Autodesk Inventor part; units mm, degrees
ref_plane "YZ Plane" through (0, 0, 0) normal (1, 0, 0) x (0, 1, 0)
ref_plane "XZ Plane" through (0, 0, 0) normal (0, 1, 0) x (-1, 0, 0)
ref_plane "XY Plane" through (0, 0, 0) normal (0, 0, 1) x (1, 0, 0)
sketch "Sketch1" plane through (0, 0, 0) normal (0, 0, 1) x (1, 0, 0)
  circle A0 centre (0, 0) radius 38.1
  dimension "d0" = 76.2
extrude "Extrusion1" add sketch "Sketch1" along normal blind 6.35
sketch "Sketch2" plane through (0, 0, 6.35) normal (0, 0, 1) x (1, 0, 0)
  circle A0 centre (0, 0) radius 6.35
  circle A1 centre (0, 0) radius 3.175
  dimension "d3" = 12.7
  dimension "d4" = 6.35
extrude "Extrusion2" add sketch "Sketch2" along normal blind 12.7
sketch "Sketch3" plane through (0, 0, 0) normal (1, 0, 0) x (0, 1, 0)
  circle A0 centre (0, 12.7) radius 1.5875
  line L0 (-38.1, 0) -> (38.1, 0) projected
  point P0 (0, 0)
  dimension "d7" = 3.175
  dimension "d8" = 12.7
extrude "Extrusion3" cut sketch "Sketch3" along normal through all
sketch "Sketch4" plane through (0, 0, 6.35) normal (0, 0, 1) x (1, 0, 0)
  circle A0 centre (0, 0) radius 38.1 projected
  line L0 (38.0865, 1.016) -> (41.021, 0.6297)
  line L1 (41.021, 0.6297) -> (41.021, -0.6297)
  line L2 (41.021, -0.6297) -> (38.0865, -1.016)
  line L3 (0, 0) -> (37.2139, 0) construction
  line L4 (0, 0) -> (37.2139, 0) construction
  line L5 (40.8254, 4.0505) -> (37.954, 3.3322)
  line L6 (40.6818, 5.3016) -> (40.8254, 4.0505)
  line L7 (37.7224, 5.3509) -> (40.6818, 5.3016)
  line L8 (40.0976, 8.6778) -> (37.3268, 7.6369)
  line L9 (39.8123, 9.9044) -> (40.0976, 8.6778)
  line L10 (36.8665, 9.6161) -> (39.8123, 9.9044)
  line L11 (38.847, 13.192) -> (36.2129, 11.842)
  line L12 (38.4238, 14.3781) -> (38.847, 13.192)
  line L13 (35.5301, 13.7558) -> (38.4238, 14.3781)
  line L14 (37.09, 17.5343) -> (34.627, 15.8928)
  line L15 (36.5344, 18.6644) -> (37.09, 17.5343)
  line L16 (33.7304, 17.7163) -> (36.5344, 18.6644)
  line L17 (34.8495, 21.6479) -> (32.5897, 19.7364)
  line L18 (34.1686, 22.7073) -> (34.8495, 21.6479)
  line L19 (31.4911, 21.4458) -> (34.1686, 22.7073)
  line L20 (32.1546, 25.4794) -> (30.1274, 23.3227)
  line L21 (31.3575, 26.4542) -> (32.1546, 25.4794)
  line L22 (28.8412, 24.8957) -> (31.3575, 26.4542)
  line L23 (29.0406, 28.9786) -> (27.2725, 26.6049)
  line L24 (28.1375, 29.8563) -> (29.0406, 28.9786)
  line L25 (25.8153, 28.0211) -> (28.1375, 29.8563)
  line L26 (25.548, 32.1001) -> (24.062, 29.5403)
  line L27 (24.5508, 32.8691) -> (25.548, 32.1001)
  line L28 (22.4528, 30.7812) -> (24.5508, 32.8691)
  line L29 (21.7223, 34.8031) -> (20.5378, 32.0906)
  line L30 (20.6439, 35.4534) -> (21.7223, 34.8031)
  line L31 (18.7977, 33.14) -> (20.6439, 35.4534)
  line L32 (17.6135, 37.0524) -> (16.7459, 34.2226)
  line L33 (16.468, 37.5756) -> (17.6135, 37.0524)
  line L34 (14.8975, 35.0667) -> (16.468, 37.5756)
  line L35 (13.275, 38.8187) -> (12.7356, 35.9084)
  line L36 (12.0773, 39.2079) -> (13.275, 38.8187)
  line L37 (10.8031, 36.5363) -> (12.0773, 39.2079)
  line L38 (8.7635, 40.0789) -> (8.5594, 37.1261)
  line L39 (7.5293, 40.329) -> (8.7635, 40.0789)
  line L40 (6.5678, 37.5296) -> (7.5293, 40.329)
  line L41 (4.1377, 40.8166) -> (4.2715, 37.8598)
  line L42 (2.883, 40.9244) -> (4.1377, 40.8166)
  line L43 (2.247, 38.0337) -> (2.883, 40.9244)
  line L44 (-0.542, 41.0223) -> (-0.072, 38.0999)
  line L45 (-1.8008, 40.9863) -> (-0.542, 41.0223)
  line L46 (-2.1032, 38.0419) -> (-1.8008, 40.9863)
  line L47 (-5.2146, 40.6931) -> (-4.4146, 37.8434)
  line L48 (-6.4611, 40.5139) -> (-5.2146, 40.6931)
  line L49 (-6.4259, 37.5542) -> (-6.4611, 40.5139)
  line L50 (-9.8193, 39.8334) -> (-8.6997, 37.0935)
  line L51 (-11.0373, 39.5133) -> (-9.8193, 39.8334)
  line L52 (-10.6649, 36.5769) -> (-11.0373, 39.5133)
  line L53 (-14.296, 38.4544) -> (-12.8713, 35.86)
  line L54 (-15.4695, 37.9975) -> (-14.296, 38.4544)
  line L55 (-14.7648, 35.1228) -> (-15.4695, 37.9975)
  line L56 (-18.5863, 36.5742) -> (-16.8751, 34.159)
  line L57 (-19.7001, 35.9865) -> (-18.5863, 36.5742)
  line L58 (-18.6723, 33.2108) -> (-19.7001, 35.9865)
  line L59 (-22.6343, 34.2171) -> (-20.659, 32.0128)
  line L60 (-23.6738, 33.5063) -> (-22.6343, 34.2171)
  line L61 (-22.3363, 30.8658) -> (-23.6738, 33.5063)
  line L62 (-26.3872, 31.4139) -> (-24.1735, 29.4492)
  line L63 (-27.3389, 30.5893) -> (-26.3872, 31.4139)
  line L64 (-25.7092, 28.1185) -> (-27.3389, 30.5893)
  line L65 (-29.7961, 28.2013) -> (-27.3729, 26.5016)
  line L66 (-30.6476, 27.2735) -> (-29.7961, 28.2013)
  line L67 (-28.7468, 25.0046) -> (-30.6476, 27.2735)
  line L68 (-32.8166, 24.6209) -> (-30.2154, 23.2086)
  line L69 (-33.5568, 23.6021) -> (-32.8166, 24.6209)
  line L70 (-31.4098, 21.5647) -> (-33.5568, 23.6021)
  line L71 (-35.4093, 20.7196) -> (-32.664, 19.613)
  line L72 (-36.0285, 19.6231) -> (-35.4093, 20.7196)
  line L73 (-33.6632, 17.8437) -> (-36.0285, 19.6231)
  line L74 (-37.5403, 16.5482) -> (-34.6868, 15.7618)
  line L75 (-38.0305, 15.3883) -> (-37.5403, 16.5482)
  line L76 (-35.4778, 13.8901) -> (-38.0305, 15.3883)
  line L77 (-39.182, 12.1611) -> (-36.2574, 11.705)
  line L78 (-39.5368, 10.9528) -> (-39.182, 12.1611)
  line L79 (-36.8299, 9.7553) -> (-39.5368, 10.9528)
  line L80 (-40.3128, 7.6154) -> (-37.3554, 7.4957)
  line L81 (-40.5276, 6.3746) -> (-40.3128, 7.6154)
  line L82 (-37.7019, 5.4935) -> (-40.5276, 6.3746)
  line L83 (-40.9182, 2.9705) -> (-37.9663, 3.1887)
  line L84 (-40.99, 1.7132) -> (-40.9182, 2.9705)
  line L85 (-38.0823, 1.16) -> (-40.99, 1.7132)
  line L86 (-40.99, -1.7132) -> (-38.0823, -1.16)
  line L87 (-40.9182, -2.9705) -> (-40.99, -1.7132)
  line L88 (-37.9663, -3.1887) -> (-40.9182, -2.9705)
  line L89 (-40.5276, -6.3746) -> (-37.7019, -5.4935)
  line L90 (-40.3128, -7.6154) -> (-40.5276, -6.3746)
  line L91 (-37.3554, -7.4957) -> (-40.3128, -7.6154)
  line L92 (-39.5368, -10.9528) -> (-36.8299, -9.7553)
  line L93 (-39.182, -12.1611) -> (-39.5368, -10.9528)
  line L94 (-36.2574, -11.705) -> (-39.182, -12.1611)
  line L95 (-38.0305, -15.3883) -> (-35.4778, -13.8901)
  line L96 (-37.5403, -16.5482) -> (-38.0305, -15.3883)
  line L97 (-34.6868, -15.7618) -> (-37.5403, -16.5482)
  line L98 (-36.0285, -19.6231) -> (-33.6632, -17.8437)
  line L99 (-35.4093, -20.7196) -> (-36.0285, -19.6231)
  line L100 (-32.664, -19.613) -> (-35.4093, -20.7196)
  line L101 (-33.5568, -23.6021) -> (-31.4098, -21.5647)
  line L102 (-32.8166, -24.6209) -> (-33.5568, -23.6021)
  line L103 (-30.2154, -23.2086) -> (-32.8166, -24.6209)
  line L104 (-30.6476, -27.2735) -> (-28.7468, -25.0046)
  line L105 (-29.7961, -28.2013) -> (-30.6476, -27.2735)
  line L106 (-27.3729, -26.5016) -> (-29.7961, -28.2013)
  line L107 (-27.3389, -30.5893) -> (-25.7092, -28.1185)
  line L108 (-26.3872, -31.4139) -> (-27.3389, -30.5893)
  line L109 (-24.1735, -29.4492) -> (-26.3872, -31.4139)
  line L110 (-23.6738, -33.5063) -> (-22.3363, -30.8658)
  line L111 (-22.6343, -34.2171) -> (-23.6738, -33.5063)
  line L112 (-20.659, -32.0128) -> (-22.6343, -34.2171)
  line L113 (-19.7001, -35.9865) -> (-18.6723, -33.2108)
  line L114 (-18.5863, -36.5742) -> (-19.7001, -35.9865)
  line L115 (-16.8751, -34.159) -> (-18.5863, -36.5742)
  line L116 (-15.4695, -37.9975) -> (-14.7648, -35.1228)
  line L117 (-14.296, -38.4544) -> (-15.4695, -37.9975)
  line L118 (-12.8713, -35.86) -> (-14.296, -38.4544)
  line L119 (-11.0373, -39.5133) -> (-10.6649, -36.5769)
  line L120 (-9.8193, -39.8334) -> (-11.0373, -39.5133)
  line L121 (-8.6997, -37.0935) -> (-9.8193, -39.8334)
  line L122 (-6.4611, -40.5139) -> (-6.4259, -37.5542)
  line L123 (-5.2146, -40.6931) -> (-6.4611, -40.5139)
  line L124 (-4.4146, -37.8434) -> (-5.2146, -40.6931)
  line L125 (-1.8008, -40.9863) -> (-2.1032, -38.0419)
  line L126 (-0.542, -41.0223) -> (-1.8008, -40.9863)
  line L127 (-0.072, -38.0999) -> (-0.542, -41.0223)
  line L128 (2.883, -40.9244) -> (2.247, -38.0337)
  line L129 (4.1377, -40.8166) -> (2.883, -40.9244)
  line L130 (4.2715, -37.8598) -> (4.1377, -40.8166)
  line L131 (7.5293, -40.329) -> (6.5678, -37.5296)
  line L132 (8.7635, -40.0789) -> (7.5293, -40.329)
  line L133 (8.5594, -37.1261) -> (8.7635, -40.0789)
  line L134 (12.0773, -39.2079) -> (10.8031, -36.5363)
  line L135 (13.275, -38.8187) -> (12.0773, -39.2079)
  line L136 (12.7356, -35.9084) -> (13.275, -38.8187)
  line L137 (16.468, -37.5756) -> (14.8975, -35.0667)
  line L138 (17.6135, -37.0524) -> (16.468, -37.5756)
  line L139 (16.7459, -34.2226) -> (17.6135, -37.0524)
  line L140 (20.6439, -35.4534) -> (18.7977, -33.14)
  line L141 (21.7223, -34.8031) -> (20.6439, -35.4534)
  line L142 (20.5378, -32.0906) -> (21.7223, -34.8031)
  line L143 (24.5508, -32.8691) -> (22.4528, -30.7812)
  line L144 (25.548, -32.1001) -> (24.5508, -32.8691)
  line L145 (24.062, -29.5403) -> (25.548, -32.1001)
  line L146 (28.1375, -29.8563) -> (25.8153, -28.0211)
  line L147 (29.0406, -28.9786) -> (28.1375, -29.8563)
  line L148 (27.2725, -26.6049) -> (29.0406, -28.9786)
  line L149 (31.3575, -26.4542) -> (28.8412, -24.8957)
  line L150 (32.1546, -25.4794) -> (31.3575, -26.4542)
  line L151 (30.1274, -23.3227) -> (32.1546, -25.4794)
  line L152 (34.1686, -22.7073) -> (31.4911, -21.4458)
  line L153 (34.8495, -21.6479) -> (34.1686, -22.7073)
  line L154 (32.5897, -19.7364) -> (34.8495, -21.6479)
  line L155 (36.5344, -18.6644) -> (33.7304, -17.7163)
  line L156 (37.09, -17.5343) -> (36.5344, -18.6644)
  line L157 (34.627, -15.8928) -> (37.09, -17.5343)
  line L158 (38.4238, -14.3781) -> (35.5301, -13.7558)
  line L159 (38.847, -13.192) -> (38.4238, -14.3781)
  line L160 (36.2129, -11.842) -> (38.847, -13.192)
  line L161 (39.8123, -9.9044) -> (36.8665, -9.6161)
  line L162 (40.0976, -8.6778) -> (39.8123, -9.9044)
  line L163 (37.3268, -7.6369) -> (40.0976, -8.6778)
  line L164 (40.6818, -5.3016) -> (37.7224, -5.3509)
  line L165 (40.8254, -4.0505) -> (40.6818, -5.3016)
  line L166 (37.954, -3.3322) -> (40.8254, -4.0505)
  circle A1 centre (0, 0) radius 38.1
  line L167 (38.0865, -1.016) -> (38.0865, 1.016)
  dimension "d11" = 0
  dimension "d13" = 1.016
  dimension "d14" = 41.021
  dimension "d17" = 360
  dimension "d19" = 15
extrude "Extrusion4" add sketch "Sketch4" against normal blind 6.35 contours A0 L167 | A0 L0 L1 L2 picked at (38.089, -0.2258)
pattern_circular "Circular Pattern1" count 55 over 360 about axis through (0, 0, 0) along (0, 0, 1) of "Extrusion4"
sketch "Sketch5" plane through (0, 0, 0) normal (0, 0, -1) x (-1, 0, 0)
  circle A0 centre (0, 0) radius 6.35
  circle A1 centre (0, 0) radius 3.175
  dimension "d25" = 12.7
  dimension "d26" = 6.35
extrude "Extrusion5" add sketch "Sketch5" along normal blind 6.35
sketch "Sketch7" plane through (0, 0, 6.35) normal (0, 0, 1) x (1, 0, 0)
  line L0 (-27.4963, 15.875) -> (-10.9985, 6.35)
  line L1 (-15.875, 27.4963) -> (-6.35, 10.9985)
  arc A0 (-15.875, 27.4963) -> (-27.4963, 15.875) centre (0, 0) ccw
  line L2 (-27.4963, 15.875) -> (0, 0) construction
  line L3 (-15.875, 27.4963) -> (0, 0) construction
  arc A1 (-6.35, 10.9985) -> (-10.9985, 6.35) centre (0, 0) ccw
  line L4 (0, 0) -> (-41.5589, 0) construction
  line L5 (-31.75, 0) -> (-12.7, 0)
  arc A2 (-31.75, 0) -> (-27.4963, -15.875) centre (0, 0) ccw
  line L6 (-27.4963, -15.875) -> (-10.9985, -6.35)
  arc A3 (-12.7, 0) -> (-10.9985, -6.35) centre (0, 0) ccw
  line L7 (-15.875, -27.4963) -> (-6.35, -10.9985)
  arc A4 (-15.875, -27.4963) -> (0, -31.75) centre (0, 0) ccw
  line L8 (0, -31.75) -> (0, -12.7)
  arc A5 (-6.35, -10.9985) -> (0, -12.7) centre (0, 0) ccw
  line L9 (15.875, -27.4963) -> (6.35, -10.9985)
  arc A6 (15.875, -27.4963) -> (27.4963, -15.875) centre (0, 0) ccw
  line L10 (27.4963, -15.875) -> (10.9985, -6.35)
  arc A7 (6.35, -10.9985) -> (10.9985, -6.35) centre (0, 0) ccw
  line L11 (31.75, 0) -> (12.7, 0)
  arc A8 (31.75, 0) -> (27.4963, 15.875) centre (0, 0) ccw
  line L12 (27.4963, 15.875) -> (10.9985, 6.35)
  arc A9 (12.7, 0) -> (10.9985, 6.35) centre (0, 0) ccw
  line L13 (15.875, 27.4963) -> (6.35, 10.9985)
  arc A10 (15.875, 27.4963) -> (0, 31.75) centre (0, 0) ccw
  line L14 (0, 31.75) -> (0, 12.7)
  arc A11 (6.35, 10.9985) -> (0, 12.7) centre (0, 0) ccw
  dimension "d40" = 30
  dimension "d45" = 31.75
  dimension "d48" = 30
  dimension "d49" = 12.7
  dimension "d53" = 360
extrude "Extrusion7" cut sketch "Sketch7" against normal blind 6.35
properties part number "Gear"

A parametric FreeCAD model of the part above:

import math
import FreeCAD as App
import Part
import Sketcher
Q = App.Units.Quantity

doc = App.newDocument("Part")
body = doc.addObject("PartDesign::Body", "Body")

sketch1 = body.newObject("Sketcher::SketchObject", "Sketch")
sketch1.AttachmentSupport = (doc.getObject("XY_Plane"), [""])
sketch1.MapMode = "FlatFace"
sketch1.addGeometry(Part.Circle(App.Vector(0, 0, 0), App.Vector(0, 0, 1), 38.1), False)
sketch1.addConstraint(Sketcher.Constraint("Coincident", 0, 3, -1, 1))
sketch1.addConstraint(Sketcher.Constraint("Diameter", 0, Q("3 in")))
pad1 = body.newObject("PartDesign::Pad", "Pad")
pad1.Profile = sketch1
pad1.Length = Q("0.25 in")

sketch2 = body.newObject("Sketcher::SketchObject", "Sketch001")
sketch2.AttachmentSupport = (doc.getObject("XY_Plane"), [""])
sketch2.MapMode = "FlatFace"
sketch2.AttachmentOffset = App.Placement(App.Vector(0, 0, 0.25 * 25.4), App.Rotation())
sketch2.addGeometry(Part.Circle(App.Vector(0, 0, 0), App.Vector(0, 0, 1), 6.35), False)
sketch2.addGeometry(Part.Circle(App.Vector(0, 0, 0), App.Vector(0, 0, 1), 3.175), False)
sketch2.addConstraint(Sketcher.Constraint("Coincident", 0, 3, -1, 1))
sketch2.addConstraint(Sketcher.Constraint("Coincident", 1, 3, -1, 1))
sketch2.addConstraint(Sketcher.Constraint("Diameter", 0, Q("0.5 in")))
sketch2.addConstraint(Sketcher.Constraint("Diameter", 1, Q("0.25 in")))
pad2 = body.newObject("PartDesign::Pad", "Pad001")
pad2.Profile = sketch2
pad2.Length = Q("0.5 in")

sketch3 = body.newObject("Sketcher::SketchObject", "Sketch002")
sketch3.AttachmentSupport = (doc.getObject("YZ_Plane"), [""])
sketch3.MapMode = "FlatFace"
sketch3.addGeometry(Part.Circle(App.Vector(0, 12.7, 0), App.Vector(0, 0, 1), 1.5875), False)
sketch3.addConstraint(Sketcher.Constraint("PointOnObject", 0, 3, -2))
sketch3.addConstraint(Sketcher.Constraint("Diameter", 0, Q("0.125 in")))
sketch3.addConstraint(Sketcher.Constraint("DistanceY", -1, 1, 0, 3, Q("0.5 in")))
pocket1 = body.newObject("PartDesign::Pocket", "Pocket")
pocket1.Profile = sketch3
pocket1.Type = "ThroughAll"
pocket1.Reversed = True

sketch4 = body.newObject("Sketcher::SketchObject", "Sketch003")
sketch4.AttachmentSupport = (doc.getObject("XY_Plane"), [""])
sketch4.MapMode = "FlatFace"
sketch4.AttachmentOffset = App.Placement(App.Vector(0, 0, 0.25 * 25.4), App.Rotation())
sketch4.addGeometry(Part.LineSegment(App.Vector(38.0865, 1.016, 0), App.Vector(38.0865, -1.016, 0)), False)
sketch4.addGeometry(Part.LineSegment(App.Vector(38.0865, -1.016, 0), App.Vector(41.021, -0.6297, 0)), False)
sketch4.addGeometry(Part.LineSegment(App.Vector(41.021, -0.6297, 0), App.Vector(41.021, 0.6297, 0)), False)
sketch4.addGeometry(Part.LineSegment(App.Vector(41.021, 0.6297, 0), App.Vector(38.0865, 1.016, 0)), False)
sketch4.addConstraint(Sketcher.Constraint("Coincident", 0, 2, 1, 1))
sketch4.addConstraint(Sketcher.Constraint("Coincident", 1, 2, 2, 1))
sketch4.addConstraint(Sketcher.Constraint("Coincident", 2, 2, 3, 1))
sketch4.addConstraint(Sketcher.Constraint("Coincident", 3, 2, 0, 1))
sketch4.addConstraint(Sketcher.Constraint("Vertical", 0))
sketch4.addConstraint(Sketcher.Constraint("Vertical", 2))
sketch4.addConstraint(Sketcher.Constraint("Equal", 1, 3))
sketch4.addConstraint(Sketcher.Constraint("DistanceY", 0, 2, -1, 1, Q("0.04 in")))
sketch4.addConstraint(Sketcher.Constraint("DistanceY", -1, 1, 3, 2, Q("0.04 in")))
sketch4.addConstraint(Sketcher.Constraint("DistanceX", -1, 1, 1, 2, Q("1.615 in")))
sketch4.addConstraint(Sketcher.Constraint("Angle", 1, Q("7.4993 deg")))
sketch4.addConstraint(Sketcher.Constraint("DistanceY", 2, 1, 2, 2, Q("1.2594 mm")))
pad3 = body.newObject("PartDesign::Pad", "Pad002")
pad3.Profile = sketch4
pad3.Length = Q("0.25 in")
pad3.Reversed = True
doc.recompute()

polarpattern = body.newObject("PartDesign::PolarPattern", "PolarPattern")
polarpattern.Originals = [pad3]
polarpattern.Axis = (doc.getObject("Z_Axis"), [""])
polarpattern.Angle = 360
polarpattern.Occurrences = 55
body.Tip = polarpattern

sketch5 = body.newObject("Sketcher::SketchObject", "Sketch004")
sketch5.AttachmentSupport = (doc.getObject("XY_Plane"), [""])
sketch5.MapMode = "FlatFace"
sketch5.addGeometry(Part.Circle(App.Vector(0, 0, 0), App.Vector(0, 0, 1), 6.35), False)
sketch5.addGeometry(Part.Circle(App.Vector(0, 0, 0), App.Vector(0, 0, 1), 3.175), False)
sketch5.addConstraint(Sketcher.Constraint("Coincident", 0, 3, -1, 1))
sketch5.addConstraint(Sketcher.Constraint("Coincident", 1, 3, -1, 1))
sketch5.addConstraint(Sketcher.Constraint("Diameter", 0, Q("0.5 in")))
sketch5.addConstraint(Sketcher.Constraint("Diameter", 1, Q("0.25 in")))
pad4 = body.newObject("PartDesign::Pad", "Pad003")
pad4.Profile = sketch5
pad4.Length = Q("0.25 in")
pad4.Reversed = True

sketch6 = body.newObject("Sketcher::SketchObject", "Sketch005")
sketch6.AttachmentSupport = (doc.getObject("XY_Plane"), [""])
sketch6.MapMode = "FlatFace"
sketch6.AttachmentOffset = App.Placement(App.Vector(0, 0, 0.25 * 25.4), App.Rotation())
sketch6.addGeometry(Part.ArcOfCircle(Part.Circle(App.Vector(0, 0, 0), App.Vector(0, 0, 1), 31.749994), math.radians(120.000006), math.radians(149.999994)), False)
sketch6.addGeometry(Part.LineSegment(App.Vector(-27.4963, 15.875, 0), App.Vector(-10.9985, 6.35, 0)), False)
sketch6.addGeometry(Part.ArcOfCircle(Part.Circle(App.Vector(0, 0, 0), App.Vector(0, 0, 1), 12.69998), math.radians(120.000051), math.radians(149.999949)), False)
sketch6.addGeometry(Part.LineSegment(App.Vector(-6.35, 10.9985, 0), App.Vector(-15.875, 27.4963, 0)), False)
sketch6.addGeometry(Part.LineSegment(App.Vector(-12.7, 0, 0), App.Vector(-31.75, 0, 0)), False)
sketch6.addGeometry(Part.ArcOfCircle(Part.Circle(App.Vector(0, 0, 0), App.Vector(0, 0, 1), 31.749994), math.radians(180), math.radians(210.000006)), False)
sketch6.addGeometry(Part.LineSegment(App.Vector(-27.4963, -15.875, 0), App.Vector(-10.9985, -6.35, 0)), False)
sketch6.addGeometry(Part.ArcOfCircle(Part.Circle(App.Vector(0, 0, 0), App.Vector(0, 0, 1), 12.69998), math.radians(180), math.radians(210.000051)), False)
sketch6.addGeometry(Part.LineSegment(App.Vector(-6.35, -10.9985, 0), App.Vector(-15.875, -27.4963, 0)), False)
sketch6.addGeometry(Part.ArcOfCircle(Part.Circle(App.Vector(0, 0, 0), App.Vector(0, 0, 1), 31.75), math.radians(-120.000006), math.radians(-90)), False)
sketch6.addGeometry(Part.LineSegment(App.Vector(0, -31.75, 0), App.Vector(0, -12.7, 0)), False)
sketch6.addGeometry(Part.ArcOfCircle(Part.Circle(App.Vector(0, 0, 0), App.Vector(0, 0, 1), 12.7), math.radians(-120.000051), math.radians(-90)), False)
sketch6.addGeometry(Part.LineSegment(App.Vector(6.35, -10.9985, 0), App.Vector(15.875, -27.4963, 0)), False)
sketch6.addGeometry(Part.ArcOfCircle(Part.Circle(App.Vector(0, 0, 0), App.Vector(0, 0, 1), 31.749994), math.radians(-59.999994), math.radians(-30.000006)), False)
sketch6.addGeometry(Part.LineSegment(App.Vector(27.4963, -15.875, 0), App.Vector(10.9985, -6.35, 0)), False)
sketch6.addGeometry(Part.ArcOfCircle(Part.Circle(App.Vector(0, 0, 0), App.Vector(0, 0, 1), 12.69998), math.radians(-59.999949), math.radians(-30.000051)), False)
sketch6.addGeometry(Part.LineSegment(App.Vector(12.7, 0, 0), App.Vector(31.75, 0, 0)), False)
sketch6.addGeometry(Part.ArcOfCircle(Part.Circle(App.Vector(0, 0, 0), App.Vector(0, 0, 1), 31.749994), math.radians(0), math.radians(30.000006)), False)
sketch6.addGeometry(Part.LineSegment(App.Vector(27.4963, 15.875, 0), App.Vector(10.9985, 6.35, 0)), False)
sketch6.addGeometry(Part.ArcOfCircle(Part.Circle(App.Vector(0, 0, 0), App.Vector(0, 0, 1), 12.69998), math.radians(0), math.radians(30.000051)), False)
sketch6.addGeometry(Part.LineSegment(App.Vector(6.35, 10.9985, 0), App.Vector(15.875, 27.4963, 0)), False)
sketch6.addGeometry(Part.ArcOfCircle(Part.Circle(App.Vector(0, 0, 0), App.Vector(0, 0, 1), 31.75), math.radians(59.999994), math.radians(90)), False)
sketch6.addGeometry(Part.LineSegment(App.Vector(0, 31.75, 0), App.Vector(0, 12.7, 0)), False)
sketch6.addGeometry(Part.ArcOfCircle(Part.Circle(App.Vector(0, 0, 0), App.Vector(0, 0, 1), 12.7), math.radians(59.999949), math.radians(90)), False)
sketch6.addConstraint(Sketcher.Constraint("Coincident", 0, 2, 1, 1))
sketch6.addConstraint(Sketcher.Constraint("Coincident", 1, 2, 2, 2))
sketch6.addConstraint(Sketcher.Constraint("Coincident", 2, 1, 3, 1))
sketch6.addConstraint(Sketcher.Constraint("Coincident", 3, 2, 0, 1))
sketch6.addConstraint(Sketcher.Constraint("Coincident", 4, 2, 5, 1))
sketch6.addConstraint(Sketcher.Constraint("Coincident", 5, 2, 6, 1))
sketch6.addConstraint(Sketcher.Constraint("Coincident", 6, 2, 7, 2))
sketch6.addConstraint(Sketcher.Constraint("Coincident", 7, 1, 4, 1))
sketch6.addConstraint(Sketcher.Constraint("Coincident", 8, 2, 9, 1))
sketch6.addConstraint(Sketcher.Constraint("Coincident", 9, 2, 10, 1))
sketch6.addConstraint(Sketcher.Constraint("Coincident", 10, 2, 11, 2))
sketch6.addConstraint(Sketcher.Constraint("Coincident", 11, 1, 8, 1))
sketch6.addConstraint(Sketcher.Constraint("Coincident", 12, 2, 13, 1))
sketch6.addConstraint(Sketcher.Constraint("Coincident", 13, 2, 14, 1))
sketch6.addConstraint(Sketcher.Constraint("Coincident", 14, 2, 15, 2))
sketch6.addConstraint(Sketcher.Constraint("Coincident", 15, 1, 12, 1))
sketch6.addConstraint(Sketcher.Constraint("Coincident", 16, 2, 17, 1))
sketch6.addConstraint(Sketcher.Constraint("Coincident", 17, 2, 18, 1))
sketch6.addConstraint(Sketcher.Constraint("Coincident", 18, 2, 19, 2))
sketch6.addConstraint(Sketcher.Constraint("Coincident", 19, 1, 16, 1))
sketch6.addConstraint(Sketcher.Constraint("Coincident", 20, 2, 21, 1))
sketch6.addConstraint(Sketcher.Constraint("Coincident", 21, 2, 22, 1))
sketch6.addConstraint(Sketcher.Constraint("Coincident", 22, 2, 23, 2))
sketch6.addConstraint(Sketcher.Constraint("Coincident", 23, 1, 20, 1))
sketch6.addConstraint(Sketcher.Constraint("Horizontal", 4))
sketch6.addConstraint(Sketcher.Constraint("Vertical", 10))
sketch6.addConstraint(Sketcher.Constraint("Horizontal", 16))
sketch6.addConstraint(Sketcher.Constraint("Vertical", 22))
sketch6.addConstraint(Sketcher.Constraint("Coincident", 0, 3, -1, 1))
sketch6.addConstraint(Sketcher.Constraint("Coincident", 2, 3, -1, 1))
sketch6.addConstraint(Sketcher.Constraint("Coincident", 5, 3, -1, 1))
sketch6.addConstraint(Sketcher.Constraint("Coincident", 7, 3, -1, 1))
sketch6.addConstraint(Sketcher.Constraint("Coincident", 9, 3, -1, 1))
sketch6.addConstraint(Sketcher.Constraint("Coincident", 11, 3, -1, 1))
sketch6.addConstraint(Sketcher.Constraint("Coincident", 13, 3, -1, 1))
sketch6.addConstraint(Sketcher.Constraint("Coincident", 15, 3, -1, 1))
sketch6.addConstraint(Sketcher.Constraint("Coincident", 17, 3, -1, 1))
sketch6.addConstraint(Sketcher.Constraint("Coincident", 19, 3, -1, 1))
sketch6.addConstraint(Sketcher.Constraint("Coincident", 21, 3, -1, 1))
sketch6.addConstraint(Sketcher.Constraint("Coincident", 23, 3, -1, 1))
sketch6.addConstraint(Sketcher.Constraint("Equal", 0, 5))
sketch6.addConstraint(Sketcher.Constraint("Equal", 2, 7))
sketch6.addConstraint(Sketcher.Constraint("Equal", 5, 9))
sketch6.addConstraint(Sketcher.Constraint("Equal", 7, 11))
sketch6.addConstraint(Sketcher.Constraint("Equal", 9, 13))
sketch6.addConstraint(Sketcher.Constraint("Equal", 11, 15))
sketch6.addConstraint(Sketcher.Constraint("Equal", 13, 17))
sketch6.addConstraint(Sketcher.Constraint("Equal", 15, 19))
sketch6.addConstraint(Sketcher.Constraint("Equal", 17, 21))
sketch6.addConstraint(Sketcher.Constraint("Equal", 19, 23))
sketch6.addConstraint(Sketcher.Constraint("PointOnObject", 4, 2, -1))
sketch6.addConstraint(Sketcher.Constraint("PointOnObject", 9, 2, -2))
sketch6.addConstraint(Sketcher.Constraint("PointOnObject", 16, 2, -1))
sketch6.addConstraint(Sketcher.Constraint("PointOnObject", 21, 2, -2))
sketch6.addConstraint(Sketcher.Constraint("Perpendicular", 3, 6))
sketch6.addConstraint(Sketcher.Constraint("Perpendicular", 1, 8))
sketch6.addConstraint(Sketcher.Constraint("Perpendicular", 6, 12))
sketch6.addConstraint(Sketcher.Constraint("Perpendicular", 8, 14))
sketch6.addConstraint(Sketcher.Constraint("Perpendicular", 12, 18))
sketch6.addConstraint(Sketcher.Constraint("Perpendicular", 14, 20))
sketch6.addConstraint(Sketcher.Constraint("Horizontal", 8, 2, 12, 2))
sketch6.addConstraint(Sketcher.Constraint("Horizontal", 5, 2, 13, 2))
sketch6.addConstraint(Sketcher.Constraint("Horizontal", 6, 2, 14, 2))
sketch6.addConstraint(Sketcher.Constraint("Horizontal", 0, 2, 17, 2))
sketch6.addConstraint(Sketcher.Constraint("Horizontal", 3, 2, 20, 2))
sketch6.addConstraint(Sketcher.Constraint("Vertical", 0, 2, 5, 2))
sketch6.addConstraint(Sketcher.Constraint("Vertical", 3, 2, 8, 2))
sketch6.addConstraint(Sketcher.Constraint("Radius", 2, Q("0.5 in")))
sketch6.addConstraint(Sketcher.Constraint("Radius", 0, Q("1.25 in")))
sketch6.addConstraint(Sketcher.Constraint("Angle", 1, Q("-30 deg")))
sketch6.addConstraint(Sketcher.Constraint("DistanceX", 4, 2, 2, 1, Q("1 in")))
sketch6.addConstraint(Sketcher.Constraint("DistanceY", 9, 2, 6, 2, Q("1 in")))
pocket2 = body.newObject("PartDesign::Pocket", "Pocket001")
pocket2.Profile = sketch6
pocket2.Length = Q("0.25 in")

doc.recompute()
